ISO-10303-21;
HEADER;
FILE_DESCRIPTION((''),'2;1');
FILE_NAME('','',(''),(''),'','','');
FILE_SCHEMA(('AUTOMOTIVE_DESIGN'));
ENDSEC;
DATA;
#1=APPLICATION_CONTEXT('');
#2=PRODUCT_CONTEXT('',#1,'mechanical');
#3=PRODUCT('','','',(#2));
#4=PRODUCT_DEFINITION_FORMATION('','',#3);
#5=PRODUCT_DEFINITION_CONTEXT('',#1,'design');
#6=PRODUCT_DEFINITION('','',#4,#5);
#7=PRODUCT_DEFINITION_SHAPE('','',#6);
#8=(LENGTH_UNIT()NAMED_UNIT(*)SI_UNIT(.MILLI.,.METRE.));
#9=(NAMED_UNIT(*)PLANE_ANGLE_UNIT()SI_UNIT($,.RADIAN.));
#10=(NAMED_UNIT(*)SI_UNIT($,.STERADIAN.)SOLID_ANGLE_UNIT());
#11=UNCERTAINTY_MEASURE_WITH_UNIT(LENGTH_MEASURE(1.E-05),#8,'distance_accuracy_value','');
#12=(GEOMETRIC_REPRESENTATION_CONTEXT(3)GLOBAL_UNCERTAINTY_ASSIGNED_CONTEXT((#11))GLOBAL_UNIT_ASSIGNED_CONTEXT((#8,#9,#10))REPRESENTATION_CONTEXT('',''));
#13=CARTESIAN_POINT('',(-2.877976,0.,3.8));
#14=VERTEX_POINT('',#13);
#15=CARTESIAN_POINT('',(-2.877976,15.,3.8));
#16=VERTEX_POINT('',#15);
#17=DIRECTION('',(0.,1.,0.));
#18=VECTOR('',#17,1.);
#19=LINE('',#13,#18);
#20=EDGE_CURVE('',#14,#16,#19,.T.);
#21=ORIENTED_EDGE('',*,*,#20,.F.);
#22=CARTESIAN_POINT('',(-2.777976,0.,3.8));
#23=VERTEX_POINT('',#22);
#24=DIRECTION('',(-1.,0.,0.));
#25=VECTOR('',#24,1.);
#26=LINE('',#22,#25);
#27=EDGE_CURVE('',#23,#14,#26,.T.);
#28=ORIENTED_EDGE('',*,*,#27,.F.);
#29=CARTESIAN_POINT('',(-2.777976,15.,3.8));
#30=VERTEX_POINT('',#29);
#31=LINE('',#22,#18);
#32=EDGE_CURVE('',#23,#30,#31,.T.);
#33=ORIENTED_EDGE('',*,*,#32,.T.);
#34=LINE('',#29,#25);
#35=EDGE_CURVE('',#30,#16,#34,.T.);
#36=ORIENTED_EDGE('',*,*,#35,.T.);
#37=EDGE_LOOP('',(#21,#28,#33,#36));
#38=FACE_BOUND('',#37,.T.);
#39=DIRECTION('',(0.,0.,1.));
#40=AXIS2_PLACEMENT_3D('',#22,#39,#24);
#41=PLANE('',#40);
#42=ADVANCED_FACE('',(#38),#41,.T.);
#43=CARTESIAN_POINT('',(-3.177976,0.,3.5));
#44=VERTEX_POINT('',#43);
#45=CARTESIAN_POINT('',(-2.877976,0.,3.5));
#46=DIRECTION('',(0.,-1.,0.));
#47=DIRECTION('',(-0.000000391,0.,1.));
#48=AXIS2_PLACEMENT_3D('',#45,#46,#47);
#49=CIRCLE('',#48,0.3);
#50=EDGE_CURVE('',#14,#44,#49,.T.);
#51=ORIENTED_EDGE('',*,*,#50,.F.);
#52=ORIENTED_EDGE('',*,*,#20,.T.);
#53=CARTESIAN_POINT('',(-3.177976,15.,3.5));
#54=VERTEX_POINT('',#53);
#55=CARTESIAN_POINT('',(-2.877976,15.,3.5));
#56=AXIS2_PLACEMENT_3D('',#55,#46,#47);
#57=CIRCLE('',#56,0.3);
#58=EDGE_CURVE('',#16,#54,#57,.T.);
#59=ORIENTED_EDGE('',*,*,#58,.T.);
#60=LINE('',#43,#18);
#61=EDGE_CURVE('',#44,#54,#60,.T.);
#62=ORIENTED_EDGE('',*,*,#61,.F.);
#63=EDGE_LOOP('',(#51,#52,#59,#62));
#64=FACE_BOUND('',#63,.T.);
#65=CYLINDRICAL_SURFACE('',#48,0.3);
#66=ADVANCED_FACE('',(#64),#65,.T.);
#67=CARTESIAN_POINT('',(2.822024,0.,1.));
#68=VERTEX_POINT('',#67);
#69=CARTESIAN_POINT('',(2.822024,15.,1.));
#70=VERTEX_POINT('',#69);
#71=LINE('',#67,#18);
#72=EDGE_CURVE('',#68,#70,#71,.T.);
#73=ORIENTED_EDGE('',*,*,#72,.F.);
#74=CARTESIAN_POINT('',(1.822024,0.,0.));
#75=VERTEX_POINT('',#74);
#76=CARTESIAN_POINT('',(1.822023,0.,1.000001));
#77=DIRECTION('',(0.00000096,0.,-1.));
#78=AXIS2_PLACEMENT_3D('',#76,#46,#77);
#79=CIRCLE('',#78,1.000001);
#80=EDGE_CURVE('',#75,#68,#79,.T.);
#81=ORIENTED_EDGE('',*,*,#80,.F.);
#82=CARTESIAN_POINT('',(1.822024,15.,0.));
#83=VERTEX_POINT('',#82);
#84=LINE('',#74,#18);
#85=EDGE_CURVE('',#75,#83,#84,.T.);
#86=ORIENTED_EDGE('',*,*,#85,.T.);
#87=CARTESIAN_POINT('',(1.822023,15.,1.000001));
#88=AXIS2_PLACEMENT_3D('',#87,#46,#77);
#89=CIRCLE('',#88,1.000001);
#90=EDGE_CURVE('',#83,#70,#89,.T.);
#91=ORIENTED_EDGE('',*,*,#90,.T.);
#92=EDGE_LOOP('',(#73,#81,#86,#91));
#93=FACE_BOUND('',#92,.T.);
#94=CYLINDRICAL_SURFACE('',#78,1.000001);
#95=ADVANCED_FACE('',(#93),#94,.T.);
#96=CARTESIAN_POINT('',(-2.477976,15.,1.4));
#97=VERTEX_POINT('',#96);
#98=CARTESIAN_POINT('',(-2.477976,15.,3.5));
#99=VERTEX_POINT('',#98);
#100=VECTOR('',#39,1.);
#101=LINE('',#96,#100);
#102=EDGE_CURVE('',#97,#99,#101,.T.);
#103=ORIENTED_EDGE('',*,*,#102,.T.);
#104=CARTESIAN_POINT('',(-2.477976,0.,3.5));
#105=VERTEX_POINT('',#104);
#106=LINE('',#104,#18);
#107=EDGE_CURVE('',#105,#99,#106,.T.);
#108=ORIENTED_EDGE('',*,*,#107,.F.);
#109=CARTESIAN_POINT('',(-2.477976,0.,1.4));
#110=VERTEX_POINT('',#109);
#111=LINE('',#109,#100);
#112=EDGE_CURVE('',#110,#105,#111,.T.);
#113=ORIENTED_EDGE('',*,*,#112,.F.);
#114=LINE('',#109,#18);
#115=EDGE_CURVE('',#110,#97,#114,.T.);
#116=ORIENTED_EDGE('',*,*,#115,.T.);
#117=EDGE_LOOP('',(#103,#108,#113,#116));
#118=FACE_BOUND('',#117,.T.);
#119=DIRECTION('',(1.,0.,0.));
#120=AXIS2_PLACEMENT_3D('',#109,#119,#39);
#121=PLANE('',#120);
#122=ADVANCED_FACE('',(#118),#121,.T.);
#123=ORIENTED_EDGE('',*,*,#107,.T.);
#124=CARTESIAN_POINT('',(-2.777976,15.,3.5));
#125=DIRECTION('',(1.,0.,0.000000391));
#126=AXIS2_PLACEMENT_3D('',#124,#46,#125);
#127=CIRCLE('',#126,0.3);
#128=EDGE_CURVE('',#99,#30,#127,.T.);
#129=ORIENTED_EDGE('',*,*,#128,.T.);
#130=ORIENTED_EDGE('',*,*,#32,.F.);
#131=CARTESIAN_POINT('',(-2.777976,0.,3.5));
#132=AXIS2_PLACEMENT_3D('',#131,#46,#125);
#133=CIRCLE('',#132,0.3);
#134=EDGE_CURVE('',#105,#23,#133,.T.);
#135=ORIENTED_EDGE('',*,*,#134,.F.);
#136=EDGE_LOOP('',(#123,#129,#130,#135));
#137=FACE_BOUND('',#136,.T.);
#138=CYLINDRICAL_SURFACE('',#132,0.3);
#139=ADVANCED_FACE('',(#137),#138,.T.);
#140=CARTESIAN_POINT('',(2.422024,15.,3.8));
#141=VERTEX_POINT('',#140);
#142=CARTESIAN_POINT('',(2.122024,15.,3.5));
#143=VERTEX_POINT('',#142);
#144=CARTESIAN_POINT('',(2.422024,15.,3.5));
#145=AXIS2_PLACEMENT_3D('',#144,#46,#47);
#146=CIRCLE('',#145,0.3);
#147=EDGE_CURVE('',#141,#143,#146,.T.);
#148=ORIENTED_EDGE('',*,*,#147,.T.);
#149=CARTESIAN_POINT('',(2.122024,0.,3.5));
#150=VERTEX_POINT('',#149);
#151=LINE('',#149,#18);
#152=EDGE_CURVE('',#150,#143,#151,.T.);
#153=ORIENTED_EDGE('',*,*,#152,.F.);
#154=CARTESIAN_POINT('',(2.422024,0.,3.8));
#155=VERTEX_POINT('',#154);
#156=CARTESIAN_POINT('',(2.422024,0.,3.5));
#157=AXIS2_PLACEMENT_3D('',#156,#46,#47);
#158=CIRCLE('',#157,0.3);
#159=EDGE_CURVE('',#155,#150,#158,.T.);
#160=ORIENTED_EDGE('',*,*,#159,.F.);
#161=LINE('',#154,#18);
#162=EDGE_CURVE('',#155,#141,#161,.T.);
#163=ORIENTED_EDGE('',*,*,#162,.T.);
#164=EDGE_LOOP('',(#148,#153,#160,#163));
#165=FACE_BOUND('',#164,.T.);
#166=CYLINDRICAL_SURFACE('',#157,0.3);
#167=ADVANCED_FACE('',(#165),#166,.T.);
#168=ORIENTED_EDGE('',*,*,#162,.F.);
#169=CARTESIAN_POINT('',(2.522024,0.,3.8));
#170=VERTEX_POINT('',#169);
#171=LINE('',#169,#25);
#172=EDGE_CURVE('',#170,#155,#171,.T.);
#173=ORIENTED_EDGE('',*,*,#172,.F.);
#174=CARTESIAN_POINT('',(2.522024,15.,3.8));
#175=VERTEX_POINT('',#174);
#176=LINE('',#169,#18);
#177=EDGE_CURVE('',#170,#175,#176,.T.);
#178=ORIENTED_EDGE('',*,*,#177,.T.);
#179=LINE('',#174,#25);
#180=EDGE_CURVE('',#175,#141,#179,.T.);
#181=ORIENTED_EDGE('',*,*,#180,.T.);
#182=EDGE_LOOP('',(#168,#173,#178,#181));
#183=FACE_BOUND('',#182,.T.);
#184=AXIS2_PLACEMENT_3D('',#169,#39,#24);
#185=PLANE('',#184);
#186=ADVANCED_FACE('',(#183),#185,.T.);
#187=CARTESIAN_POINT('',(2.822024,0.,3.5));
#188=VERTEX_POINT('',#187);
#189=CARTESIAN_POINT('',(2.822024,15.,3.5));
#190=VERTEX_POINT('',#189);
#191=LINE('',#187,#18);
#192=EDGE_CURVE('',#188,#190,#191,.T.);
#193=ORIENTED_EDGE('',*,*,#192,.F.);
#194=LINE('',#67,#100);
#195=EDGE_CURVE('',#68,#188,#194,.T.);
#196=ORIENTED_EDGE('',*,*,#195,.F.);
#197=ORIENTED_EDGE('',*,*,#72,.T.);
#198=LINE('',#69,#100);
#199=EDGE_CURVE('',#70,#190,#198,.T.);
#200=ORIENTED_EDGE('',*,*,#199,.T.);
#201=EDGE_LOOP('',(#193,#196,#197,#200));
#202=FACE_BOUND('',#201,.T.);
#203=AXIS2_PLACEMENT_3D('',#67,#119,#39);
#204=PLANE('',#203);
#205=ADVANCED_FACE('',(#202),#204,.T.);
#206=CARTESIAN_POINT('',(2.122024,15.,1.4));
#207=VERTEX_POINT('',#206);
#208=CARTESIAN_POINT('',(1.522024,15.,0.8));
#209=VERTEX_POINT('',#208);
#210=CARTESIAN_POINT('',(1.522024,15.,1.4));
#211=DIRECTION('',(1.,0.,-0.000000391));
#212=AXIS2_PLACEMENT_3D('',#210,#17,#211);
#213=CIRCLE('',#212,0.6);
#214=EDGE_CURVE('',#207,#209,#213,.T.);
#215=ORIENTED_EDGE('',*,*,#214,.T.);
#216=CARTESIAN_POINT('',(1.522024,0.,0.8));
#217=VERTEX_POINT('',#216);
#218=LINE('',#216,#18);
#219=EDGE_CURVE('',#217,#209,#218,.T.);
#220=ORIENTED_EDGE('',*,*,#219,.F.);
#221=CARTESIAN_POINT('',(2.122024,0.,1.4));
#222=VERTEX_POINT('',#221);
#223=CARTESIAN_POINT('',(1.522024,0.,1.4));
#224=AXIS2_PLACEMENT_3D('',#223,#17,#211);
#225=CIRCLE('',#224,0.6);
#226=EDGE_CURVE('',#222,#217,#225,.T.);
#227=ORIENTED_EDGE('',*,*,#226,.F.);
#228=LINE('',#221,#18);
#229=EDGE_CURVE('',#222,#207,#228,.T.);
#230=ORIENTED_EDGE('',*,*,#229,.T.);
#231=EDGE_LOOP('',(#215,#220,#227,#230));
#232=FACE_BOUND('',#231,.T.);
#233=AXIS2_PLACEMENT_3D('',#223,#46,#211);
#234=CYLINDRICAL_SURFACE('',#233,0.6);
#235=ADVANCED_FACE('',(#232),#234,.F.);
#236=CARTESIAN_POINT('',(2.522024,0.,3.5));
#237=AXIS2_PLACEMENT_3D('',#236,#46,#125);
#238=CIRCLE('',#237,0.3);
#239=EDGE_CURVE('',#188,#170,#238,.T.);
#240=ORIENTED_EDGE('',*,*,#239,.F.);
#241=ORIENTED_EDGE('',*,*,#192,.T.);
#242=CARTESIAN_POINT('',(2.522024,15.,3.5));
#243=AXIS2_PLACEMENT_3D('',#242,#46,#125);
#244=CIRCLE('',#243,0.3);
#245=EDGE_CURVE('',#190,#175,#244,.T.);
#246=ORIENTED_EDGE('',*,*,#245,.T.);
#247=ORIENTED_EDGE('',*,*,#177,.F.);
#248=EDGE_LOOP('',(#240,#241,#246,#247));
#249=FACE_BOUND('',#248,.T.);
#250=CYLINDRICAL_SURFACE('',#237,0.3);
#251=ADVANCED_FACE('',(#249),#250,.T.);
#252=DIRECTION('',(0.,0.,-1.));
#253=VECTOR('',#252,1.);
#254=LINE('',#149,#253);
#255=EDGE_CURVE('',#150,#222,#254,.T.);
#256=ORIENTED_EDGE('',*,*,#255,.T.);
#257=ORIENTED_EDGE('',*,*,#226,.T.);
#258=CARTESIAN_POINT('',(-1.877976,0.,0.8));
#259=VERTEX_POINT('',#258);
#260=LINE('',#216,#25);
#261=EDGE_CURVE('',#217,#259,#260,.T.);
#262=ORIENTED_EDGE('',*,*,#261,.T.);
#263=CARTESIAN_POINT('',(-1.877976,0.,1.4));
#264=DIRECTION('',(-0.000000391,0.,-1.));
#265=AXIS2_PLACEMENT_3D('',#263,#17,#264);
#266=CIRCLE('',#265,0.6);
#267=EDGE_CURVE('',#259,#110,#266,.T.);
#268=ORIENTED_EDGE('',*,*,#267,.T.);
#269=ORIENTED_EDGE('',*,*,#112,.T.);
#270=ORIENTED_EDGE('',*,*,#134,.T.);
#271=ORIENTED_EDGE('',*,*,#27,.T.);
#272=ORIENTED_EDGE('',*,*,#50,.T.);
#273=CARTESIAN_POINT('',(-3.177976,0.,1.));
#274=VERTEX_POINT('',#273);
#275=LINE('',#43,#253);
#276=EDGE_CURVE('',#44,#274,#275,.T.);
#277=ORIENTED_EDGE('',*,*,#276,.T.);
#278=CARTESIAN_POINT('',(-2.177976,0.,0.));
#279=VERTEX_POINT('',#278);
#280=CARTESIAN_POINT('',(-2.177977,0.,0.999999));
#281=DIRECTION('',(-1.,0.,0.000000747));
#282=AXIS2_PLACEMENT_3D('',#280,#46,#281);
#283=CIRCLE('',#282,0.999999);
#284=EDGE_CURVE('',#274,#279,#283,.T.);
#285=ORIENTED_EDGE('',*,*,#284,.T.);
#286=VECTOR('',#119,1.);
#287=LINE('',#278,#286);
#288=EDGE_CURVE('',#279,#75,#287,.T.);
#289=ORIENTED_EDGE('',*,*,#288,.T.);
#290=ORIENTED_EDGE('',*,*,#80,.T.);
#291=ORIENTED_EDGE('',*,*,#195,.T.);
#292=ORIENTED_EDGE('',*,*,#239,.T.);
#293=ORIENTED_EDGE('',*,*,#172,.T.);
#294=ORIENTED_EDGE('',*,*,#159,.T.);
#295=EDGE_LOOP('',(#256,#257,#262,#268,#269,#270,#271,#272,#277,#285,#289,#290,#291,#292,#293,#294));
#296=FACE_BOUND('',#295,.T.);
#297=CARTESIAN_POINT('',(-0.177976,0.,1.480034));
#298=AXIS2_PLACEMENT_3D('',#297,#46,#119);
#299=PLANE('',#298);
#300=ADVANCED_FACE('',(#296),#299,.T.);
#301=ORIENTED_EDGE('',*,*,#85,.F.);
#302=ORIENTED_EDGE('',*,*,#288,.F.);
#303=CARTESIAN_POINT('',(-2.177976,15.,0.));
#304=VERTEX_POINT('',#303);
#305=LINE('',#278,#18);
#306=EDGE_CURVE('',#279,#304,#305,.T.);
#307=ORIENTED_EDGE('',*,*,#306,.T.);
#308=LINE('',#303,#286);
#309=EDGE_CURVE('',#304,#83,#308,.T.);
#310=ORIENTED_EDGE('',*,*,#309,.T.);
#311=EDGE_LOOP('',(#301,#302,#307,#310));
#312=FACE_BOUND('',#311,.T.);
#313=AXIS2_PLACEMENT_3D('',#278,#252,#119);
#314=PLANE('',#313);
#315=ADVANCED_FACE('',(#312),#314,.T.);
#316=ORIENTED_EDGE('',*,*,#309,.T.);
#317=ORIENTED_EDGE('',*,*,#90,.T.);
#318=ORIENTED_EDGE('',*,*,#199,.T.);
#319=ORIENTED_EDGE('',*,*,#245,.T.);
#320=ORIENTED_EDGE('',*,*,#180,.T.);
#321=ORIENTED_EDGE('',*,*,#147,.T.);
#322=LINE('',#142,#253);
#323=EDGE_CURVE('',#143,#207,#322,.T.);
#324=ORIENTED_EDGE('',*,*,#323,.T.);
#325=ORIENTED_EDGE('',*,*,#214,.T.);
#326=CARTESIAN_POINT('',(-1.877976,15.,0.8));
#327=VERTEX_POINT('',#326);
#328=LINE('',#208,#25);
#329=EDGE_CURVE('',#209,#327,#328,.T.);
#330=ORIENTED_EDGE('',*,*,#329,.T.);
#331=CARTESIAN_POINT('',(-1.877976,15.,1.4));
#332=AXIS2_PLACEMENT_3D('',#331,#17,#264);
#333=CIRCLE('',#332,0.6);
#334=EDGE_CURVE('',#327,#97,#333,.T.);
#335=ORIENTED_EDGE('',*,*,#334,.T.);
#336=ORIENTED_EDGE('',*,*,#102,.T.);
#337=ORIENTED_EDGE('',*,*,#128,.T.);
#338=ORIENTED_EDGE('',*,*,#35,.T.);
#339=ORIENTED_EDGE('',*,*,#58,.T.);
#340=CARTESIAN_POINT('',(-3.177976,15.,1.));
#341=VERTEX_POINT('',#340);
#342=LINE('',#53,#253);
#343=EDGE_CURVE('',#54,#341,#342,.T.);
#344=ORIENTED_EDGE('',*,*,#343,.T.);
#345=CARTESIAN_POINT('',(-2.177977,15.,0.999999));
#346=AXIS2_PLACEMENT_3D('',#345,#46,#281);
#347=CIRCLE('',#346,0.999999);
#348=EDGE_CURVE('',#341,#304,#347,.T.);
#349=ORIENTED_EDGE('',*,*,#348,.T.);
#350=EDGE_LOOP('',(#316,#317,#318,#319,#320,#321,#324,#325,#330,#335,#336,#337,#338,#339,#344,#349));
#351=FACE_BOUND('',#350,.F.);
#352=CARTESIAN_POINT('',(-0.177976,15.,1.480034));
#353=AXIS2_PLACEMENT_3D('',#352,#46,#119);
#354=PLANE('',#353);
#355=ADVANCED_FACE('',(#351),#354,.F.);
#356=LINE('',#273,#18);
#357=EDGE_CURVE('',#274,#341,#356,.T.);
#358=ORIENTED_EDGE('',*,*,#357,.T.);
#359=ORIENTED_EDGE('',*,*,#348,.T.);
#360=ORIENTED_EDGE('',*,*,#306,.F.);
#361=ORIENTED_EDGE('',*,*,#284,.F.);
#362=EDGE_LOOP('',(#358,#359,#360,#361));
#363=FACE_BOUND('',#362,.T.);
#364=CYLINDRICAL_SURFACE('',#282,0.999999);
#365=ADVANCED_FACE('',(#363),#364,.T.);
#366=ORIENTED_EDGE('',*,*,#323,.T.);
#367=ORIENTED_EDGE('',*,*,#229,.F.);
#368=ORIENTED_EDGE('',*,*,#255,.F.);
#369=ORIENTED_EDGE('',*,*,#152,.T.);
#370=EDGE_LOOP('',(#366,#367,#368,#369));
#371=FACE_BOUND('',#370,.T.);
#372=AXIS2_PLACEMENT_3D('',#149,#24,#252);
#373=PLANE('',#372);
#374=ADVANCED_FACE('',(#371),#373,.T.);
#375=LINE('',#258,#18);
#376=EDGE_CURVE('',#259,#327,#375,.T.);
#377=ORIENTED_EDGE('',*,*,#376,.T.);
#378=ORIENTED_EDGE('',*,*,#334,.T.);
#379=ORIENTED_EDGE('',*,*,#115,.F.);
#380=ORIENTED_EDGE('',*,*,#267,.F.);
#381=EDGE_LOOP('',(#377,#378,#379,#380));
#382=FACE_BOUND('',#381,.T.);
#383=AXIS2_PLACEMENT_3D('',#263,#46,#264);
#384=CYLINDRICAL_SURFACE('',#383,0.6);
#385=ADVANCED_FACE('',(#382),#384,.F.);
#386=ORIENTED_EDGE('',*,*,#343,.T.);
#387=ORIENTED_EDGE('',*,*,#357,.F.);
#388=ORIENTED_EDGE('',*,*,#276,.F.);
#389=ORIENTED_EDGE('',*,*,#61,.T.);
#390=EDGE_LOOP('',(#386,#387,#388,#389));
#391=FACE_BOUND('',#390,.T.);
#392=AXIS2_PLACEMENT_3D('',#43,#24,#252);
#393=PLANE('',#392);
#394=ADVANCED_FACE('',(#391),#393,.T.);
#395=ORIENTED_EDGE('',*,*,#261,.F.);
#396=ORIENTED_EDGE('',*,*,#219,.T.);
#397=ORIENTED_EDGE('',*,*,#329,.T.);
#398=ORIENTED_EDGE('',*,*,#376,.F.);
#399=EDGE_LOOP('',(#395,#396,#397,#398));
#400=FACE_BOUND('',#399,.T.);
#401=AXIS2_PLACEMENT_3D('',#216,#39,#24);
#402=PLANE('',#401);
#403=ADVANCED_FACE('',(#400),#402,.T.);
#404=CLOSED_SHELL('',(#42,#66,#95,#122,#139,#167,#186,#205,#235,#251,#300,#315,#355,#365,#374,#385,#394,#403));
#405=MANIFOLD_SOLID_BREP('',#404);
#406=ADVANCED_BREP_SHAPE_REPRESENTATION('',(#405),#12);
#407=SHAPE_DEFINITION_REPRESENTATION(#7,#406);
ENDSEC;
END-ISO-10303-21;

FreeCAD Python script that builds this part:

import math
import FreeCAD as App
import Part
import Sketcher

V = App.Vector
Q = App.Units.Quantity

doc = App.newDocument("Part")
body = doc.addObject("PartDesign::Body", "Body")

# Sketch on XZ plane
sketch1 = body.newObject("Sketcher::SketchObject", "Sketch")
sketch1.AttachmentSupport = (doc.getObject("XZ_Plane"), [""])
sketch1.MapMode = "FlatFace"
sketch1.addGeometry([
    Part.LineSegment(V(-2.777976, 3.8, 0), V(-2.877976, 3.8, 0)),  # 0
    Part.ArcOfCircle(Part.Circle(V(-2.877976, 3.5, 0), V(0, 0, 1), 0.3), math.radians(90.000022), math.radians(179.999978)),  # 1
    Part.LineSegment(V(-3.177976, 3.5, 0), V(-3.177976, 1, 0)),  # 2
    Part.ArcOfCircle(Part.Circle(V(-2.177977, 0.999999, 0), V(0, 0, 1), 0.999999), math.radians(179.999957), math.radians(270.000043)),  # 3
    Part.LineSegment(V(-2.177976, 0, 0), V(1.822024, 0, 0)),  # 4
    Part.ArcOfCircle(Part.Circle(V(1.822023, 1.000001, 0), V(0, 0, 1), 1.000001), math.radians(-89.999945), math.radians(-0.000055)),  # 5
    Part.LineSegment(V(2.822024, 1, 0), V(2.822024, 3.5, 0)),  # 6
    Part.ArcOfCircle(Part.Circle(V(2.522024, 3.5, 0), V(0, 0, 1), 0.3), math.radians(0.000022), math.radians(89.999978)),  # 7
    Part.LineSegment(V(2.522024, 3.8, 0), V(2.422024, 3.8, 0)),  # 8
    Part.ArcOfCircle(Part.Circle(V(2.422024, 3.5, 0), V(0, 0, 1), 0.3), math.radians(90.000022), math.radians(179.999978)),  # 9
    Part.LineSegment(V(2.122024, 3.5, 0), V(2.122024, 1.4, 0)),  # 10
    Part.ArcOfCircle(Part.Circle(V(1.522024, 1.4, 0), V(0, 0, 1), 0.6), math.radians(-89.999978), math.radians(-0.000022)),  # 11
    Part.LineSegment(V(1.522024, 0.8, 0), V(-1.877976, 0.8, 0)),  # 12
    Part.ArcOfCircle(Part.Circle(V(-1.877976, 1.4, 0), V(0, 0, 1), 0.6), math.radians(-179.999978), math.radians(-90.000022)),  # 13
    Part.LineSegment(V(-2.477976, 1.4, 0), V(-2.477976, 3.5, 0)),  # 14
    Part.ArcOfCircle(Part.Circle(V(-2.777976, 3.5, 0), V(0, 0, 1), 0.3), math.radians(0.000022), math.radians(89.999978)),  # 15
], False)
sketch1.addConstraint([
    Sketcher.Constraint("Tangent", 0, 2, 1, 1),
    Sketcher.Constraint("Tangent", 1, 2, 2, 1),
    Sketcher.Constraint("Tangent", 2, 2, 3, 1),
    Sketcher.Constraint("Tangent", 3, 2, 4, 1),
    Sketcher.Constraint("Tangent", 4, 2, 5, 1),
    Sketcher.Constraint("Tangent", 5, 2, 6, 1),
    Sketcher.Constraint("Tangent", 6, 2, 7, 1),
    Sketcher.Constraint("Tangent", 7, 2, 8, 1),
    Sketcher.Constraint("Tangent", 8, 2, 9, 1),
    Sketcher.Constraint("Tangent", 9, 2, 10, 1),
    Sketcher.Constraint("Tangent", 10, 2, 11, 2),
    Sketcher.Constraint("Tangent", 11, 1, 12, 1),
    Sketcher.Constraint("Tangent", 12, 2, 13, 2),
    Sketcher.Constraint("Tangent", 13, 1, 14, 1),
    Sketcher.Constraint("Tangent", 14, 2, 15, 1),
    Sketcher.Constraint("Tangent", 15, 2, 0, 1),
    Sketcher.Constraint("Horizontal", 0),
    Sketcher.Constraint("Vertical", 2),
    Sketcher.Constraint("Horizontal", 4),
    Sketcher.Constraint("Vertical", 6),
    Sketcher.Constraint("Horizontal", 8),
    Sketcher.Constraint("Vertical", 10),
    Sketcher.Constraint("Horizontal", 12),
    Sketcher.Constraint("Vertical", 14),
    Sketcher.Constraint("Equal", 3, 5),
    Sketcher.Constraint("Equal", 1, 7),
    Sketcher.Constraint("Equal", 7, 9),
    Sketcher.Constraint("Equal", 11, 13),
    Sketcher.Constraint("Equal", 9, 15),
    Sketcher.Constraint("PointOnObject", 3, 2, -1),
    Sketcher.Constraint("Horizontal", 1, 3, 7, 3),
    Sketcher.Constraint("Equal", 0, 8),
    Sketcher.Constraint("Radius", 3, Q("0.999999 mm")),
    Sketcher.Constraint("Radius", 1, Q("0.3 mm")),
    Sketcher.Constraint("Radius", 11, Q("0.6 mm")),
    Sketcher.Constraint("DistanceX", 4, 1, 4, 2, Q("4 mm")),
    Sketcher.Constraint("DistanceX", 0, 2, 0, 1, Q("0.1 mm")),
    Sketcher.Constraint("DistanceY", 2, 2, 2, 1, Q("2.5 mm")),
    Sketcher.Constraint("DistanceY", 10, 2, 10, 1, Q("2.1 mm")),
    Sketcher.Constraint("DistanceX", 1, 3, -1, 1, Q("2.877976 mm")),
])
pad1 = body.newObject("PartDesign::Pad", "Pad")
pad1.Profile = sketch1
pad1.Length = 15
pad1.Reversed = True

doc.recompute()
